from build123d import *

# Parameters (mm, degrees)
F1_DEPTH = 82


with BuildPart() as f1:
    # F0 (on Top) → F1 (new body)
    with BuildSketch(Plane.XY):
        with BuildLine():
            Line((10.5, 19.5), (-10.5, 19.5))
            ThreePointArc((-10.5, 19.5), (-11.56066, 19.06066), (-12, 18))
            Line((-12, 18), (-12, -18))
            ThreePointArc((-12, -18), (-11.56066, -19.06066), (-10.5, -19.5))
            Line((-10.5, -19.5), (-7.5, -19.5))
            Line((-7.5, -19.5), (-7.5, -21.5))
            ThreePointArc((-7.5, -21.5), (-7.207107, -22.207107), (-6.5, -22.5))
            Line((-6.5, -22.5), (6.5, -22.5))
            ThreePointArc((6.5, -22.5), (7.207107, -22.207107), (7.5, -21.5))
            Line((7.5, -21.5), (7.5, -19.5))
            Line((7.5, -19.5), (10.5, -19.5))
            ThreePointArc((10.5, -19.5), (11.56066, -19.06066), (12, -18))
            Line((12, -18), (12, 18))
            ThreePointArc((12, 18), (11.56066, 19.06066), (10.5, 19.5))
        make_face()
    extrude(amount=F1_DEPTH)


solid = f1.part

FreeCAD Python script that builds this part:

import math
import FreeCAD as App
import Part
import Sketcher

V = App.Vector
Q = App.Units.Quantity

doc = App.newDocument("Part")
body = doc.addObject("PartDesign::Body", "Body")

sketch1 = body.newObject("Sketcher::SketchObject", "Sketch")
sketch1.AttachmentSupport = (doc.getObject("XY_Plane"), [""])
sketch1.MapMode = "FlatFace"
sketch1.addGeometry(Part.LineSegment(V(10.5, 19.5, 0), V(-10.5, 19.5, 0)), False)
sketch1.addGeometry(Part.ArcOfCircle(Part.Circle(V(-10.5, 18, 0), V(0, 0, 1), 1.5), math.radians(90), math.radians(180)), False)
sketch1.addGeometry(Part.LineSegment(V(-12, 18, 0), V(-12, -18, 0)), False)
sketch1.addGeometry(Part.ArcOfCircle(Part.Circle(V(-10.5, -18, 0), V(0, 0, 1), 1.5), math.radians(-180), math.radians(-90)), False)
sketch1.addGeometry(Part.LineSegment(V(-10.5, -19.5, 0), V(-7.5, -19.5, 0)), False)
sketch1.addGeometry(Part.LineSegment(V(-7.5, -19.5, 0), V(-7.5, -21.5, 0)), False)
sketch1.addGeometry(Part.ArcOfCircle(Part.Circle(V(-6.5, -21.5, 0), V(0, 0, 1), 1), math.radians(180), math.radians(270)), False)
sketch1.addGeometry(Part.LineSegment(V(-6.5, -22.5, 0), V(6.5, -22.5, 0)), False)
sketch1.addGeometry(Part.ArcOfCircle(Part.Circle(V(6.5, -21.5, 0), V(0, 0, 1), 1), math.radians(-90), math.radians(0)), False)
sketch1.addGeometry(Part.LineSegment(V(7.5, -21.5, 0), V(7.5, -19.5, 0)), False)
sketch1.addGeometry(Part.LineSegment(V(7.5, -19.5, 0), V(10.5, -19.5, 0)), False)
sketch1.addGeometry(Part.ArcOfCircle(Part.Circle(V(10.5, -18, 0), V(0, 0, 1), 1.5), math.radians(-90), math.radians(0)), False)
sketch1.addGeometry(Part.LineSegment(V(12, -18, 0), V(12, 18, 0)), False)
sketch1.addGeometry(Part.ArcOfCircle(Part.Circle(V(10.5, 18, 0), V(0, 0, 1), 1.5), math.radians(0), math.radians(90)), False)
sketch1.addConstraint(Sketcher.Constraint("Tangent", 0, 2, 1, 1))
sketch1.addConstraint(Sketcher.Constraint("Tangent", 1, 2, 2, 1))
sketch1.addConstraint(Sketcher.Constraint("Tangent", 2, 2, 3, 1))
sketch1.addConstraint(Sketcher.Constraint("Tangent", 3, 2, 4, 1))
sketch1.addConstraint(Sketcher.Constraint("Coincident", 4, 2, 5, 1))
sketch1.addConstraint(Sketcher.Constraint("Tangent", 5, 2, 6, 1))
sketch1.addConstraint(Sketcher.Constraint("Tangent", 6, 2, 7, 1))
sketch1.addConstraint(Sketcher.Constraint("Tangent", 7, 2, 8, 1))
sketch1.addConstraint(Sketcher.Constraint("Tangent", 8, 2, 9, 1))
sketch1.addConstraint(Sketcher.Constraint("Coincident", 9, 2, 10, 1))
sketch1.addConstraint(Sketcher.Constraint("Tangent", 10, 2, 11, 1))
sketch1.addConstraint(Sketcher.Constraint("Tangent", 11, 2, 12, 1))
sketch1.addConstraint(Sketcher.Constraint("Tangent", 12, 2, 13, 1))
sketch1.addConstraint(Sketcher.Constraint("Tangent", 13, 2, 0, 1))
sketch1.addConstraint(Sketcher.Constraint("Horizontal", 0))
sketch1.addConstraint(Sketcher.Constraint("Vertical", 2))
sketch1.addConstraint(Sketcher.Constraint("Horizontal", 4))
sketch1.addConstraint(Sketcher.Constraint("Vertical", 5))
sketch1.addConstraint(Sketcher.Constraint("Horizontal", 7))
sketch1.addConstraint(Sketcher.Constraint("Vertical", 9))
sketch1.addConstraint(Sketcher.Constraint("Horizontal", 10))
sketch1.addConstraint(Sketcher.Constraint("Vertical", 12))
sketch1.addConstraint(Sketcher.Constraint("Equal", 1, 3))
sketch1.addConstraint(Sketcher.Constraint("Equal", 6, 8))
sketch1.addConstraint(Sketcher.Constraint("Equal", 3, 11))
sketch1.addConstraint(Sketcher.Constraint("Equal", 11, 13))
sketch1.addConstraint(Sketcher.Constraint("Symmetric", 1, 3, 11, 3, -1, 1))
sketch1.addConstraint(Sketcher.Constraint("Symmetric", 4, 2, 9, 2, -2))
sketch1.addConstraint(Sketcher.Constraint("Radius", 6, Q("0.999999 mm")))
sketch1.addConstraint(Sketcher.Constraint("Radius", 1, Q("1.500001 mm")))
sketch1.addConstraint(Sketcher.Constraint("DistanceX", 0, 2, 0, 1, Q("21 mm")))
sketch1.addConstraint(Sketcher.Constraint("DistanceX", 4, 1, 4, 2, Q("3 mm")))
sketch1.addConstraint(Sketcher.Constraint("DistanceY", 2, 2, 2, 1, Q("36 mm")))
sketch1.addConstraint(Sketcher.Constraint("DistanceY", 5, 2, 5, 1, Q("2 mm")))
pad1 = body.newObject("PartDesign::Pad", "Pad")
pad1.Profile = sketch1
pad1.Length = 82

doc.recompute()
